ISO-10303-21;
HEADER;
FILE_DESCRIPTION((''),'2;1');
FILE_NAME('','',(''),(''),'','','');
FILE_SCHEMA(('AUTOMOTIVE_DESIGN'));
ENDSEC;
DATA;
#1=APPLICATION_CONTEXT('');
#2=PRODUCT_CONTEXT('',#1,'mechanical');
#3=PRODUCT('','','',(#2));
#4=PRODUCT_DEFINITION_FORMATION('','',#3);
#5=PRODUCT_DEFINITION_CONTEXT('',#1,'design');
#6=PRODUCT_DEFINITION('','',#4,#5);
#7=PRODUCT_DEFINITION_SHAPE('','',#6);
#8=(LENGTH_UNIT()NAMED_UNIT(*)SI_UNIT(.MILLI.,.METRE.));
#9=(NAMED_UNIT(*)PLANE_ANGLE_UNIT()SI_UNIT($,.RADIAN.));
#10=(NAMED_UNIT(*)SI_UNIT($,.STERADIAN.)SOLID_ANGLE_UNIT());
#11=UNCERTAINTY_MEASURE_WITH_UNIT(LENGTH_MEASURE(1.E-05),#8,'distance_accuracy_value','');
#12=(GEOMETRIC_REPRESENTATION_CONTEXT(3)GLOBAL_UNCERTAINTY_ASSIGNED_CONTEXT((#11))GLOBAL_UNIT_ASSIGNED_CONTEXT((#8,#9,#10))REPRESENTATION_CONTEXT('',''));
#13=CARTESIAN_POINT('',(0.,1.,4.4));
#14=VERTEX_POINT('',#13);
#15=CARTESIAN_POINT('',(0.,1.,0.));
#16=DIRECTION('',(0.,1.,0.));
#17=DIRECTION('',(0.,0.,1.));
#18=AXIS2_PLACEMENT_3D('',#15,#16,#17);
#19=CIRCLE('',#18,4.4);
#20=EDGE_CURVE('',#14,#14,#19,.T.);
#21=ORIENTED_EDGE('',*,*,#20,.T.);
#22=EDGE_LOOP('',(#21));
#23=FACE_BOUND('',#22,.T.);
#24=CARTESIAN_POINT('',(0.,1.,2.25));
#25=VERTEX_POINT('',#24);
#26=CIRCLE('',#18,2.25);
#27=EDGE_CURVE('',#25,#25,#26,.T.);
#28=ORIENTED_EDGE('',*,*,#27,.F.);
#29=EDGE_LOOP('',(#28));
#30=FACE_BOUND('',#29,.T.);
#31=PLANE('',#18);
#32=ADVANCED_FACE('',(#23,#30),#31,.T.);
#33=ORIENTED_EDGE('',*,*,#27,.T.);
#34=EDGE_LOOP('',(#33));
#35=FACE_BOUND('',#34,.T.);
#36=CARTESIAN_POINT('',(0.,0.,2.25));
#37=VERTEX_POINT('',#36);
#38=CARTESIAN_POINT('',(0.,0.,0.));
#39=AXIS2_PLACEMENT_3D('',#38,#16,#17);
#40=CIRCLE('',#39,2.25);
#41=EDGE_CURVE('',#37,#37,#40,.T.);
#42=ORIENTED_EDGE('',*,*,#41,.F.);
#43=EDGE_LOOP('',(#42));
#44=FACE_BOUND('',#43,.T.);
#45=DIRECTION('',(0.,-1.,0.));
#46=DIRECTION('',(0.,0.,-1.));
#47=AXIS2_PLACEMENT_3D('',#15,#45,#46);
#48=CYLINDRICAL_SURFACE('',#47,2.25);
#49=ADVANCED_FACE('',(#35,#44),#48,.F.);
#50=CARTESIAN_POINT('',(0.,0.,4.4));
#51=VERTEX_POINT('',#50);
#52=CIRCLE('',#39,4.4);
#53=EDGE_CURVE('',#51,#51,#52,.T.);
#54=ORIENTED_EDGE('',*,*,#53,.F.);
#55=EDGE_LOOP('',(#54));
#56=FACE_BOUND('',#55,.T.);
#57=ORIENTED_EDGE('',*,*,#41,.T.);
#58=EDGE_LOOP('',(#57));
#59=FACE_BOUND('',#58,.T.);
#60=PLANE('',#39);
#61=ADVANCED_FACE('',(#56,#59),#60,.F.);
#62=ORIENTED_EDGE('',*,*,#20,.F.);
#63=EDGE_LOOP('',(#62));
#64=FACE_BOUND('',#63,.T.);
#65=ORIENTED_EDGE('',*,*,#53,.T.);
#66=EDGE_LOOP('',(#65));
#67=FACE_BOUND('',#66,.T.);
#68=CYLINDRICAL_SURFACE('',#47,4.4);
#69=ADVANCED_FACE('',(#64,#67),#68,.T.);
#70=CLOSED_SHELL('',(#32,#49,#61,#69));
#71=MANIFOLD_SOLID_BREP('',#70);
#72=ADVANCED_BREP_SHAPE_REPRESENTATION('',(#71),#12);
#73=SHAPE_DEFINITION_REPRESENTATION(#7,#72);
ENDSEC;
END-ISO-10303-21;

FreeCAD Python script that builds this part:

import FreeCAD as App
import Part
import Sketcher
from FreeCAD import Vector
Q = App.Units.Quantity

doc = App.newDocument("Part")
params = doc.addObject("Spreadsheet::Sheet", "Params")
for row, (alias, value) in enumerate([
    ("sketch1_diameter", "8.8 mm"),
    ("sketch1_diameter2", "4.5 mm"),
    ("pad1_length", "1 mm"),
], start=1):
    params.set(f"A{row}", alias)
    params.set(f"B{row}", "=" + value)
    params.setAlias(f"B{row}", alias)

body = doc.addObject("PartDesign::Body", "Body")

# Sketch on XZ plane
sketch1 = doc.addObject("Sketcher::SketchObject", "Sketch")
body.addObject(sketch1)
sketch1.AttachmentSupport = (doc.XZ_Plane, [""])
sketch1.MapMode = "FlatFace"
sketch1.addGeometry(Part.Circle(Vector(0, 0, 0), Vector(0, 0, 1), 4.4), False)
sketch1.addGeometry(Part.Circle(Vector(0, 0, 0), Vector(0, 0, 1), 2.2), False)
sketch1.addConstraint(Sketcher.Constraint("Coincident", 0, 3, -1, 1))
sketch1.addConstraint(Sketcher.Constraint("Coincident", 1, 3, -1, 1))
sketch1.addConstraint(Sketcher.Constraint("Diameter", 0, Q("8.8 mm")))
sketch1.addConstraint(Sketcher.Constraint("Diameter", 1, Q("4.5 mm")))
sketch1.setExpression("Constraints[2]", "Params.sketch1_diameter")
sketch1.setExpression("Constraints[3]", "Params.sketch1_diameter2")
pad1 = doc.addObject("PartDesign::Pad", "Pad")
body.addObject(pad1)
pad1.Profile = sketch1
pad1.setExpression("Length", "Params.pad1_length")
pad1.Reversed = True

doc.recompute()
